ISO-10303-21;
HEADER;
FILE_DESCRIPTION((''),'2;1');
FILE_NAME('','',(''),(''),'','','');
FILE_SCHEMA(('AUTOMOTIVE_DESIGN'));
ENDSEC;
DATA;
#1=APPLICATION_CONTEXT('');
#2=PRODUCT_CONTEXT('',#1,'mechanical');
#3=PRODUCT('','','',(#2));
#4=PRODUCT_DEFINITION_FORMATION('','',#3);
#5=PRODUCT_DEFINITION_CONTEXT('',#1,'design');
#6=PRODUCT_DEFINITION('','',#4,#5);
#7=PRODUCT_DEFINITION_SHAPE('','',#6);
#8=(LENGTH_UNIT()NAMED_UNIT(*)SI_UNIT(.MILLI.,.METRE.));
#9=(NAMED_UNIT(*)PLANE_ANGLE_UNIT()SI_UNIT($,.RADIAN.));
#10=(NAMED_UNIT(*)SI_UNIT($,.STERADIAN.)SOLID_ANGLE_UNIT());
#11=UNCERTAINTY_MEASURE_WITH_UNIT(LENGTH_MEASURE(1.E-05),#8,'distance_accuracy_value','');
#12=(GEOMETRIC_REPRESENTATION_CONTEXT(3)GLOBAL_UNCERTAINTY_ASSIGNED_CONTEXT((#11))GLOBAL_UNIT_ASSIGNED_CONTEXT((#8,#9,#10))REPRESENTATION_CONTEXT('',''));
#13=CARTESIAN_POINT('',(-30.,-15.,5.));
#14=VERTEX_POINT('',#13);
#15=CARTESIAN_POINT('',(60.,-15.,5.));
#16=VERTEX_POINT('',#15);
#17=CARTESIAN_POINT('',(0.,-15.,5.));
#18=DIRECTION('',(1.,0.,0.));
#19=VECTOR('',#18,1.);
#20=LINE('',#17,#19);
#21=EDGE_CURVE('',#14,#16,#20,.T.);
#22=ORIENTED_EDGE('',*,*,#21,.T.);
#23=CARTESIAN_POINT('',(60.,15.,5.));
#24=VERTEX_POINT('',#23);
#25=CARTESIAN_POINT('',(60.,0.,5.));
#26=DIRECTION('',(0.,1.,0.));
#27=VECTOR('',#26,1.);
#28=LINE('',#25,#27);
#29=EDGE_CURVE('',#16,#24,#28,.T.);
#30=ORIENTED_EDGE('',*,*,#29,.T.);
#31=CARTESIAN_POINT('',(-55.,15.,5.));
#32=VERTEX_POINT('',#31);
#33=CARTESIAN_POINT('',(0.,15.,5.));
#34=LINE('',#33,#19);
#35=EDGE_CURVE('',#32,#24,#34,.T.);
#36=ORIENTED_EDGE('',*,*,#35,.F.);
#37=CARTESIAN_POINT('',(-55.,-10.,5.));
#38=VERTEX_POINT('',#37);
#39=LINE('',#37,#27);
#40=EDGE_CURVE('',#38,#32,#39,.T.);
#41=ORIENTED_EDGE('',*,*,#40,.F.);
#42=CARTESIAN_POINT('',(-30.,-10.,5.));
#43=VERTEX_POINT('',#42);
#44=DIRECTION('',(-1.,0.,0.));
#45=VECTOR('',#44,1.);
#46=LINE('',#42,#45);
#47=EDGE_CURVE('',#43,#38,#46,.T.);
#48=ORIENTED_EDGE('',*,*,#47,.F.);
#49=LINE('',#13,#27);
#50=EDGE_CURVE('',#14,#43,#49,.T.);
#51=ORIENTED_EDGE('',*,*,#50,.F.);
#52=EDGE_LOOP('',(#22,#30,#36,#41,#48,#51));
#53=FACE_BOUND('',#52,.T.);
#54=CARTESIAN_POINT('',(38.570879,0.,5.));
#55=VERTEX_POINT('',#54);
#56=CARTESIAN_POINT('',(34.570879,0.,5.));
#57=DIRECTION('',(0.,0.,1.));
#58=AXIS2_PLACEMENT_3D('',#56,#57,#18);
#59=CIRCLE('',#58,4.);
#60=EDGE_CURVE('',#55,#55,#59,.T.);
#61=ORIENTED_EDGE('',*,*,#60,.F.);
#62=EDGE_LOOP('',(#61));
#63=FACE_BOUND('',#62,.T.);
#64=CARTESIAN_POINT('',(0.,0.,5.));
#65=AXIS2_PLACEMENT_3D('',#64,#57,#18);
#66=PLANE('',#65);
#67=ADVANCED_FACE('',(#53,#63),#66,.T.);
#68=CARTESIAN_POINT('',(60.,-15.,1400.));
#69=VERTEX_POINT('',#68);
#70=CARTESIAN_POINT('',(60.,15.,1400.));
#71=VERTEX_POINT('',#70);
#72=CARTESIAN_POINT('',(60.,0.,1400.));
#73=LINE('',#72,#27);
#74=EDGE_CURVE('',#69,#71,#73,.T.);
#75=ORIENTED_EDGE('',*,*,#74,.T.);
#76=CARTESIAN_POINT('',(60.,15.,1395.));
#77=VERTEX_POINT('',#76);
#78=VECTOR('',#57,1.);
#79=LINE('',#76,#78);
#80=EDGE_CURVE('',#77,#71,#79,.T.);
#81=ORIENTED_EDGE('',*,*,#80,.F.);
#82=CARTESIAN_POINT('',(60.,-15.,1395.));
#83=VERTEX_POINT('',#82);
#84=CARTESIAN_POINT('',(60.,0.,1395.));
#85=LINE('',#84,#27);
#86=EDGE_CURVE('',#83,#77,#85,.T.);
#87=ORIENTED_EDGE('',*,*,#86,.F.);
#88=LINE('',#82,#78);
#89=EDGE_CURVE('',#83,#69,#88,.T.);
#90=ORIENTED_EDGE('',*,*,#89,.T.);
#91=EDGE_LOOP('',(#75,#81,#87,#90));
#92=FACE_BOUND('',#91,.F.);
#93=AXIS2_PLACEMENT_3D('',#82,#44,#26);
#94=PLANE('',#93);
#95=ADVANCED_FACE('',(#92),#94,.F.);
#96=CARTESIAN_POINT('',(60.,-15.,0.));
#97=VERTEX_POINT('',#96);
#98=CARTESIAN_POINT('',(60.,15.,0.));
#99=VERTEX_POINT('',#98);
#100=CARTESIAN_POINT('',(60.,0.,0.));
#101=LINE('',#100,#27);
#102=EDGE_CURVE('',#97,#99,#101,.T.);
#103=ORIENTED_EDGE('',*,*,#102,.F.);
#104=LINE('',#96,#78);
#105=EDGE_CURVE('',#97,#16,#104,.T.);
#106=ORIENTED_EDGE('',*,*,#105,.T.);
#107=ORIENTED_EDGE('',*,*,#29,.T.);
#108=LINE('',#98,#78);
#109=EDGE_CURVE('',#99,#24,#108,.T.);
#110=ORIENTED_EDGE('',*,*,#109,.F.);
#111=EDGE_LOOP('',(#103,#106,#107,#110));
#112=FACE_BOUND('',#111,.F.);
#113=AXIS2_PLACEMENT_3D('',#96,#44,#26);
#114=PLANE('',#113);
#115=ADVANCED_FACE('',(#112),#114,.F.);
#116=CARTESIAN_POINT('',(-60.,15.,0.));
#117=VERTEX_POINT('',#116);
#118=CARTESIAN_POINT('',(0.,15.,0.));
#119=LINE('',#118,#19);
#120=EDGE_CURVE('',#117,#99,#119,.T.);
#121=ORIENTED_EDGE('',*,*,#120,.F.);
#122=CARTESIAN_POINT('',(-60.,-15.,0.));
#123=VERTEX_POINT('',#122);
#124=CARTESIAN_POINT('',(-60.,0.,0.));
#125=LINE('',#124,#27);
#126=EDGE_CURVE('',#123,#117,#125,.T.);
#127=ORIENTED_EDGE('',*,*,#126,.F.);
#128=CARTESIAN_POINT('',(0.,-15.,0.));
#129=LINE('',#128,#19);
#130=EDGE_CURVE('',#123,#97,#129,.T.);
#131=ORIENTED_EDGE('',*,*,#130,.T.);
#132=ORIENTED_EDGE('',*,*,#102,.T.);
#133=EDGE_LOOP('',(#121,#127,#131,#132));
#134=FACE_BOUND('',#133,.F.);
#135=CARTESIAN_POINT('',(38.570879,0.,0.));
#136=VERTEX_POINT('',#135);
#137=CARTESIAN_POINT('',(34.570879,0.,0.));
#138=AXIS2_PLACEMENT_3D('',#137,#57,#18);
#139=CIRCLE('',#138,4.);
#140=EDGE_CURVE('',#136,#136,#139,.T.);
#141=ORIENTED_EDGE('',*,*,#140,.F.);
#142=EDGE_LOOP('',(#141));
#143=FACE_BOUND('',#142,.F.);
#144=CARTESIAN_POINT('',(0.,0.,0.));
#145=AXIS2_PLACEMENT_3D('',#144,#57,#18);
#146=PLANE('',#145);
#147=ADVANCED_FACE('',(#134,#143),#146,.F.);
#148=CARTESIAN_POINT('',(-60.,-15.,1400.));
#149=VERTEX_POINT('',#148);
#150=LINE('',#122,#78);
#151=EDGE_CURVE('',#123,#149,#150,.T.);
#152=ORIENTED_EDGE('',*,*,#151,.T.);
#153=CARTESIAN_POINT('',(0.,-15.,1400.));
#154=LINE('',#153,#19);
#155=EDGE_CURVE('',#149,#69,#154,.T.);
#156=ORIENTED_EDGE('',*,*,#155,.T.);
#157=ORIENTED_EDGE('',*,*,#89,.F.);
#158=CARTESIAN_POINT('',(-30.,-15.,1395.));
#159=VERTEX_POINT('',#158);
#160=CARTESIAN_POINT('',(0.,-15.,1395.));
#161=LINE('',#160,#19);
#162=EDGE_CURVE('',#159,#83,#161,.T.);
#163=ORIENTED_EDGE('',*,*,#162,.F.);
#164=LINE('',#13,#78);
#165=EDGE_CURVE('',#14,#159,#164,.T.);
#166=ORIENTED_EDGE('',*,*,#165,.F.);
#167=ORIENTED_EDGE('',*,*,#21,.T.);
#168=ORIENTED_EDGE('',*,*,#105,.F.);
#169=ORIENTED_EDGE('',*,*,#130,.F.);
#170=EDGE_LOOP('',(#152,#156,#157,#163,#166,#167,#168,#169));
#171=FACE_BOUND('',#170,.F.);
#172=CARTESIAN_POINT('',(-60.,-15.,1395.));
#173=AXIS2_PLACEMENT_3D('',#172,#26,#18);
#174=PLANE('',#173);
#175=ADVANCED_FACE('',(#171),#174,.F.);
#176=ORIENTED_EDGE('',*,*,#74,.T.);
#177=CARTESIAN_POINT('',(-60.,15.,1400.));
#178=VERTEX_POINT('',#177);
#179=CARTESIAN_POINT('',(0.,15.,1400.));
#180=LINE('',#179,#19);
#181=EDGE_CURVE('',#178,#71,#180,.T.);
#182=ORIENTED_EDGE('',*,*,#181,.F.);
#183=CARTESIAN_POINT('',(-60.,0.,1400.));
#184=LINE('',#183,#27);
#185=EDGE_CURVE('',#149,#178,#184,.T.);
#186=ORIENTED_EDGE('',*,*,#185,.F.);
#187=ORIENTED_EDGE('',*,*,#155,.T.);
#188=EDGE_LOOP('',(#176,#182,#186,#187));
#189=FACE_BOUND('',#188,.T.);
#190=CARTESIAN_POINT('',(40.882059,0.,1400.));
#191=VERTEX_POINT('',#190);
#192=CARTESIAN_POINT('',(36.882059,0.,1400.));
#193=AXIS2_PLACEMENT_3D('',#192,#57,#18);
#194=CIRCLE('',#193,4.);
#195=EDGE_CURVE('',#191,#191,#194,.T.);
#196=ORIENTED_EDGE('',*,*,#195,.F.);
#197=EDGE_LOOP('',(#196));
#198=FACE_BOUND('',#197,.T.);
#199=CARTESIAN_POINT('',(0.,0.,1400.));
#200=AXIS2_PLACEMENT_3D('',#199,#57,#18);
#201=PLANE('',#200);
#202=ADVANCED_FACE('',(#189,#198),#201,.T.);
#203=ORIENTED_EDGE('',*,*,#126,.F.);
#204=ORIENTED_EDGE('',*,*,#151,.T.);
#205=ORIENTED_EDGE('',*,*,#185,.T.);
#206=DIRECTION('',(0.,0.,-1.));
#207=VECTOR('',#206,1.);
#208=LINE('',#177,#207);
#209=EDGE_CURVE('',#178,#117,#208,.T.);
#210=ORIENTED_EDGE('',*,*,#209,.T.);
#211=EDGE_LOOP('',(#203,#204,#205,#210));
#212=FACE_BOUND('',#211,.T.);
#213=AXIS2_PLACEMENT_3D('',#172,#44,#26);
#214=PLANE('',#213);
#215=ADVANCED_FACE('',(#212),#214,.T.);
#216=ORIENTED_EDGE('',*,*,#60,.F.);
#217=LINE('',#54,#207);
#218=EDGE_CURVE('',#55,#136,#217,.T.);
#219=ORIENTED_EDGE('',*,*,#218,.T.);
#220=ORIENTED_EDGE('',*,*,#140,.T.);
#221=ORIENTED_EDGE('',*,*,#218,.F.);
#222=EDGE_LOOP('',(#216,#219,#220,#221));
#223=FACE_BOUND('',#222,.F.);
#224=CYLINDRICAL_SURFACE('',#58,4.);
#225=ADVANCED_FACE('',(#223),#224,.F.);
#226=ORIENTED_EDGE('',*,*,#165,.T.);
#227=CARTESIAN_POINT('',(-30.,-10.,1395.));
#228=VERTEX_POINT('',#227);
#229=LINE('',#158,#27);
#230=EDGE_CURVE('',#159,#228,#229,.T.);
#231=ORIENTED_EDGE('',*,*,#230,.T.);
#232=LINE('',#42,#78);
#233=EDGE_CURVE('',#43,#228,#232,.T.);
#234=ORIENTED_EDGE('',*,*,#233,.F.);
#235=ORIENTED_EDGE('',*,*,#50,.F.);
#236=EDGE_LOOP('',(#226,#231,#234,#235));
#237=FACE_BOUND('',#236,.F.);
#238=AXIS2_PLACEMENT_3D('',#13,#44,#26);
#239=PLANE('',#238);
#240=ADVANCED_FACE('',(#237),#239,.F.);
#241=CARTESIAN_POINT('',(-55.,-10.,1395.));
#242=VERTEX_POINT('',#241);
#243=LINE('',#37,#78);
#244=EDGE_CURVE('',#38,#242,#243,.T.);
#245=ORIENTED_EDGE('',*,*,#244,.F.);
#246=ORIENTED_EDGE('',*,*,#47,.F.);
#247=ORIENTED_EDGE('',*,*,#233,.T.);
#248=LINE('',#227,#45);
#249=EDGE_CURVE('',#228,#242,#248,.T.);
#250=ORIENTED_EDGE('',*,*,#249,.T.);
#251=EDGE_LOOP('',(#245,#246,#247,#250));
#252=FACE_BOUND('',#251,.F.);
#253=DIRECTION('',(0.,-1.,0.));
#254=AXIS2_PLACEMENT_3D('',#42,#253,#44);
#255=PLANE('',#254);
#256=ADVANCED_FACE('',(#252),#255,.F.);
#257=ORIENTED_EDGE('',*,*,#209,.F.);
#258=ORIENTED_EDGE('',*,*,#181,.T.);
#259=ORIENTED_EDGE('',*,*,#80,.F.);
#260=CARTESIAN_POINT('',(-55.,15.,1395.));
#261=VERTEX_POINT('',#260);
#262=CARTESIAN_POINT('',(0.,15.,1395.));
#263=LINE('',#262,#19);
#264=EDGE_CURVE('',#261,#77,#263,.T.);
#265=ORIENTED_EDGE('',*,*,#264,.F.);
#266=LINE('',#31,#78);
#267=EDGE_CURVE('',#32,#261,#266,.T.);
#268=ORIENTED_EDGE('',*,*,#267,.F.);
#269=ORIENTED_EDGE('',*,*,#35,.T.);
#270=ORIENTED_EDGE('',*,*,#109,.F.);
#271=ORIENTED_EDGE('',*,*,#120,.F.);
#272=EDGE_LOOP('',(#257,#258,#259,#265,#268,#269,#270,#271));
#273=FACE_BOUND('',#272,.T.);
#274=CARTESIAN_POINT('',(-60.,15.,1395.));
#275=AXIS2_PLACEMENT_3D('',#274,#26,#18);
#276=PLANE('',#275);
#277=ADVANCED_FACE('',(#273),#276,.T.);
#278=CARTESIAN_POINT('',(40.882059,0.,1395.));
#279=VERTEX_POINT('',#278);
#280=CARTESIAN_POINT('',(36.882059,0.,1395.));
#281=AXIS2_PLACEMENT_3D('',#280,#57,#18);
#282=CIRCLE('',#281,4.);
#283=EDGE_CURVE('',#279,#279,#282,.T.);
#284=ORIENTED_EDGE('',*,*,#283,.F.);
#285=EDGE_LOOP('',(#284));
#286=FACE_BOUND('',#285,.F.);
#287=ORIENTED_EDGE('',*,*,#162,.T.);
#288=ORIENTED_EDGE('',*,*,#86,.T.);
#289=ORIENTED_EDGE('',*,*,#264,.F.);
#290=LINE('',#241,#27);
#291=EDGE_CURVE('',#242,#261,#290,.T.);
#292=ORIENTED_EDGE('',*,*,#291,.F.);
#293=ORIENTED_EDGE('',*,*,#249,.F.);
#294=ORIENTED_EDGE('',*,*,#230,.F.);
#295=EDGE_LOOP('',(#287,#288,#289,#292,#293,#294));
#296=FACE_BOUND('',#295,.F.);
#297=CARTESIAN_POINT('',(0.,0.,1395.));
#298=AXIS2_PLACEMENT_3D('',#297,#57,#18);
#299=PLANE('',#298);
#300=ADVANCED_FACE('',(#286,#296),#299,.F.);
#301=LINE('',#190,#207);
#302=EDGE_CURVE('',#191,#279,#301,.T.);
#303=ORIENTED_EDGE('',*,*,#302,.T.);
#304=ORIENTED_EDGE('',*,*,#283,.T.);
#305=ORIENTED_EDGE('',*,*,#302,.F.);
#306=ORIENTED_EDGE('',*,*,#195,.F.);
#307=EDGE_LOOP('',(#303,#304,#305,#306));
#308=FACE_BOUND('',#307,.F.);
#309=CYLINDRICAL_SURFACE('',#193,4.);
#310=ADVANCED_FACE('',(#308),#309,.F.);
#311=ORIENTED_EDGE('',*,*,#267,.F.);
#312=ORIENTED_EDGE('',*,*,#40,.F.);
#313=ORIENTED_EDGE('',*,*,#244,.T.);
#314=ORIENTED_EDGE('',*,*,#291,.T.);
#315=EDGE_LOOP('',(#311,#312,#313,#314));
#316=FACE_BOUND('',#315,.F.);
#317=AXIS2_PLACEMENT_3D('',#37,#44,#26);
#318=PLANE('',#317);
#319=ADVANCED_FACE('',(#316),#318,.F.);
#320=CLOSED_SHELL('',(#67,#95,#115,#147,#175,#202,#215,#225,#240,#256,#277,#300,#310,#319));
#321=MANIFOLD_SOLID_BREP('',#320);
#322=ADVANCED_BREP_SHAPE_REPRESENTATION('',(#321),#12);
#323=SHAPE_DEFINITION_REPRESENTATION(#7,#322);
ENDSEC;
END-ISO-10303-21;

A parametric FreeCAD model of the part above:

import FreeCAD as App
import Part
import Sketcher
from FreeCAD import Vector
Q = App.Units.Quantity

doc = App.newDocument("Part")
body = doc.addObject("PartDesign::Body", "Body")

# Sketch on XY plane
sketch1 = doc.addObject("Sketcher::SketchObject", "Sketch")
body.addObject(sketch1)
sketch1.AttachmentSupport = (doc.XY_Plane, [""])
sketch1.MapMode = "FlatFace"
sketch1.addGeometry([
    Part.LineSegment(Vector(-60, 15, 0), Vector(-60, -15, 0)),
    Part.LineSegment(Vector(-60, -15, 0), Vector(60, -15, 0)),
    Part.LineSegment(Vector(60, -15, 0), Vector(60, 15, 0)),
    Part.LineSegment(Vector(60, 15, 0), Vector(-60, 15, 0)),
], False)
sketch1.addConstraint([
    Sketcher.Constraint("Coincident", 0, 2, 1, 1),
    Sketcher.Constraint("Coincident", 1, 2, 2, 1),
    Sketcher.Constraint("Coincident", 2, 2, 3, 1),
    Sketcher.Constraint("Coincident", 3, 2, 0, 1),
    Sketcher.Constraint("Vertical", 0),
    Sketcher.Constraint("Horizontal", 1),
    Sketcher.Constraint("Vertical", 2),
    Sketcher.Constraint("Horizontal", 3),
    Sketcher.Constraint("Symmetric", 0, 2, 2, 2, -1, 1),
    Sketcher.Constraint("DistanceX", 1, 1, 1, 2, Q("120 mm")),
    Sketcher.Constraint("DistanceY", 0, 2, 0, 1, Q("30 mm")),
])
pad1 = doc.addObject("PartDesign::Pad", "Pad")
body.addObject(pad1)
pad1.Profile = sketch1
pad1.Length = 5

# Sketch on XY plane
sketch2 = doc.addObject("Sketcher::SketchObject", "Sketch001")
body.addObject(sketch2)
sketch2.AttachmentSupport = (doc.XY_Plane, [""])
sketch2.MapMode = "FlatFace"
sketch2.AttachmentOffset = App.Placement(Vector(0, 0, 5), App.Rotation())
sketch2.addGeometry([
    Part.LineSegment(Vector(-55, 15, 0), Vector(-60, 15, 0)),  # 0
    Part.LineSegment(Vector(-60, 15, 0), Vector(-60, -15, 0)),  # 1
    Part.LineSegment(Vector(-60, -15, 0), Vector(-30, -15, 0)),  # 2
    Part.LineSegment(Vector(-30, -15, 0), Vector(-30, -10, 0)),  # 3
    Part.LineSegment(Vector(-30, -10, 0), Vector(-55, -10, 0)),  # 4
    Part.LineSegment(Vector(-55, -10, 0), Vector(-55, 15, 0)),  # 5
], False)
sketch2.addConstraint([
    Sketcher.Constraint("Coincident", 0, 2, 1, 1),
    Sketcher.Constraint("Coincident", 1, 2, 2, 1),
    Sketcher.Constraint("Coincident", 2, 2, 3, 1),
    Sketcher.Constraint("Coincident", 3, 2, 4, 1),
    Sketcher.Constraint("Coincident", 4, 2, 5, 1),
    Sketcher.Constraint("Coincident", 5, 2, 0, 1),
    Sketcher.Constraint("Horizontal", 0),
    Sketcher.Constraint("Vertical", 1),
    Sketcher.Constraint("Horizontal", 2),
    Sketcher.Constraint("Vertical", 3),
    Sketcher.Constraint("Horizontal", 4),
    Sketcher.Constraint("Vertical", 5),
    Sketcher.Constraint("Equal", 2, 1),
    Sketcher.Constraint("Equal", 0, 3),
    Sketcher.Constraint("DistanceX", 0, 2, 0, 1, Q("5 mm")),
    Sketcher.Constraint("DistanceX", 2, 1, 2, 2, Q("30 mm")),
    Sketcher.Constraint("DistanceX", 0, 2, -1, 1, Q("60 mm")),
    Sketcher.Constraint("DistanceY", -1, 1, 0, 2, Q("15 mm")),
])
pad2 = doc.addObject("PartDesign::Pad", "Pad001")
body.addObject(pad2)
pad2.Profile = sketch2
pad2.Length = 1390

# Sketch on XY plane
sketch3 = doc.addObject("Sketcher::SketchObject", "Sketch002")
body.addObject(sketch3)
sketch3.AttachmentSupport = (doc.XY_Plane, [""])
sketch3.MapMode = "FlatFace"
sketch3.AttachmentOffset = App.Placement(Vector(0, 0, 1395), App.Rotation())
sketch3.addGeometry([
    Part.LineSegment(Vector(-60, 15, 0), Vector(-60, -15, 0)),
    Part.LineSegment(Vector(-60, -15, 0), Vector(60, -15, 0)),
    Part.LineSegment(Vector(60, -15, 0), Vector(60, 15, 0)),
    Part.LineSegment(Vector(60, 15, 0), Vector(-60, 15, 0)),
], False)
sketch3.addConstraint([
    Sketcher.Constraint("Coincident", 0, 2, 1, 1),
    Sketcher.Constraint("Coincident", 1, 2, 2, 1),
    Sketcher.Constraint("Coincident", 2, 2, 3, 1),
    Sketcher.Constraint("Coincident", 3, 2, 0, 1),
    Sketcher.Constraint("Vertical", 0),
    Sketcher.Constraint("Horizontal", 1),
    Sketcher.Constraint("Vertical", 2),
    Sketcher.Constraint("Horizontal", 3),
    Sketcher.Constraint("Symmetric", 0, 2, 2, 2, -1, 1),
    Sketcher.Constraint("DistanceX", 1, 1, 1, 2, Q("120 mm")),
    Sketcher.Constraint("DistanceY", 0, 2, 0, 1, Q("30 mm")),
])
pad3 = doc.addObject("PartDesign::Pad", "Pad002")
body.addObject(pad3)
pad3.Profile = sketch3
pad3.Length = 5

# Sketch on XY plane
sketch4 = doc.addObject("Sketcher::SketchObject", "Sketch003")
body.addObject(sketch4)
sketch4.AttachmentSupport = (doc.XY_Plane, [""])
sketch4.MapMode = "FlatFace"
sketch4.AttachmentOffset = App.Placement(Vector(0, 0, 1400), App.Rotation())
sketch4.addGeometry(Part.Circle(Vector(36.9, 0, 0), Vector(0, 0, 1), 4), False)
sketch4.addConstraint([
    Sketcher.Constraint("PointOnObject", 0, 3, -1),
    Sketcher.Constraint("Diameter", 0, Q("8 mm")),
    Sketcher.Constraint("DistanceX", -1, 1, 0, 3, Q("36.882059 mm")),
])
pocket1 = doc.addObject("PartDesign::Pocket", "Pocket")
body.addObject(pocket1)
pocket1.Profile = sketch4
pocket1.Length = 25

# Sketch on XY plane
sketch5 = doc.addObject("Sketcher::SketchObject", "Sketch004")
body.addObject(sketch5)
sketch5.AttachmentSupport = (doc.XY_Plane, [""])
sketch5.MapMode = "FlatFace"
sketch5.AttachmentOffset = App.Placement(Vector(0, 0, 5), App.Rotation())
sketch5.addGeometry(Part.Circle(Vector(34.6, 0, 0), Vector(0, 0, 1), 4), False)
sketch5.addConstraint([
    Sketcher.Constraint("PointOnObject", 0, 3, -1),
    Sketcher.Constraint("Diameter", 0, Q("8 mm")),
    Sketcher.Constraint("DistanceX", -1, 1, 0, 3, Q("34.570879 mm")),
])
pocket2 = doc.addObject("PartDesign::Pocket", "Pocket001")
body.addObject(pocket2)
pocket2.Profile = sketch5
pocket2.Length = 25

doc.recompute()
